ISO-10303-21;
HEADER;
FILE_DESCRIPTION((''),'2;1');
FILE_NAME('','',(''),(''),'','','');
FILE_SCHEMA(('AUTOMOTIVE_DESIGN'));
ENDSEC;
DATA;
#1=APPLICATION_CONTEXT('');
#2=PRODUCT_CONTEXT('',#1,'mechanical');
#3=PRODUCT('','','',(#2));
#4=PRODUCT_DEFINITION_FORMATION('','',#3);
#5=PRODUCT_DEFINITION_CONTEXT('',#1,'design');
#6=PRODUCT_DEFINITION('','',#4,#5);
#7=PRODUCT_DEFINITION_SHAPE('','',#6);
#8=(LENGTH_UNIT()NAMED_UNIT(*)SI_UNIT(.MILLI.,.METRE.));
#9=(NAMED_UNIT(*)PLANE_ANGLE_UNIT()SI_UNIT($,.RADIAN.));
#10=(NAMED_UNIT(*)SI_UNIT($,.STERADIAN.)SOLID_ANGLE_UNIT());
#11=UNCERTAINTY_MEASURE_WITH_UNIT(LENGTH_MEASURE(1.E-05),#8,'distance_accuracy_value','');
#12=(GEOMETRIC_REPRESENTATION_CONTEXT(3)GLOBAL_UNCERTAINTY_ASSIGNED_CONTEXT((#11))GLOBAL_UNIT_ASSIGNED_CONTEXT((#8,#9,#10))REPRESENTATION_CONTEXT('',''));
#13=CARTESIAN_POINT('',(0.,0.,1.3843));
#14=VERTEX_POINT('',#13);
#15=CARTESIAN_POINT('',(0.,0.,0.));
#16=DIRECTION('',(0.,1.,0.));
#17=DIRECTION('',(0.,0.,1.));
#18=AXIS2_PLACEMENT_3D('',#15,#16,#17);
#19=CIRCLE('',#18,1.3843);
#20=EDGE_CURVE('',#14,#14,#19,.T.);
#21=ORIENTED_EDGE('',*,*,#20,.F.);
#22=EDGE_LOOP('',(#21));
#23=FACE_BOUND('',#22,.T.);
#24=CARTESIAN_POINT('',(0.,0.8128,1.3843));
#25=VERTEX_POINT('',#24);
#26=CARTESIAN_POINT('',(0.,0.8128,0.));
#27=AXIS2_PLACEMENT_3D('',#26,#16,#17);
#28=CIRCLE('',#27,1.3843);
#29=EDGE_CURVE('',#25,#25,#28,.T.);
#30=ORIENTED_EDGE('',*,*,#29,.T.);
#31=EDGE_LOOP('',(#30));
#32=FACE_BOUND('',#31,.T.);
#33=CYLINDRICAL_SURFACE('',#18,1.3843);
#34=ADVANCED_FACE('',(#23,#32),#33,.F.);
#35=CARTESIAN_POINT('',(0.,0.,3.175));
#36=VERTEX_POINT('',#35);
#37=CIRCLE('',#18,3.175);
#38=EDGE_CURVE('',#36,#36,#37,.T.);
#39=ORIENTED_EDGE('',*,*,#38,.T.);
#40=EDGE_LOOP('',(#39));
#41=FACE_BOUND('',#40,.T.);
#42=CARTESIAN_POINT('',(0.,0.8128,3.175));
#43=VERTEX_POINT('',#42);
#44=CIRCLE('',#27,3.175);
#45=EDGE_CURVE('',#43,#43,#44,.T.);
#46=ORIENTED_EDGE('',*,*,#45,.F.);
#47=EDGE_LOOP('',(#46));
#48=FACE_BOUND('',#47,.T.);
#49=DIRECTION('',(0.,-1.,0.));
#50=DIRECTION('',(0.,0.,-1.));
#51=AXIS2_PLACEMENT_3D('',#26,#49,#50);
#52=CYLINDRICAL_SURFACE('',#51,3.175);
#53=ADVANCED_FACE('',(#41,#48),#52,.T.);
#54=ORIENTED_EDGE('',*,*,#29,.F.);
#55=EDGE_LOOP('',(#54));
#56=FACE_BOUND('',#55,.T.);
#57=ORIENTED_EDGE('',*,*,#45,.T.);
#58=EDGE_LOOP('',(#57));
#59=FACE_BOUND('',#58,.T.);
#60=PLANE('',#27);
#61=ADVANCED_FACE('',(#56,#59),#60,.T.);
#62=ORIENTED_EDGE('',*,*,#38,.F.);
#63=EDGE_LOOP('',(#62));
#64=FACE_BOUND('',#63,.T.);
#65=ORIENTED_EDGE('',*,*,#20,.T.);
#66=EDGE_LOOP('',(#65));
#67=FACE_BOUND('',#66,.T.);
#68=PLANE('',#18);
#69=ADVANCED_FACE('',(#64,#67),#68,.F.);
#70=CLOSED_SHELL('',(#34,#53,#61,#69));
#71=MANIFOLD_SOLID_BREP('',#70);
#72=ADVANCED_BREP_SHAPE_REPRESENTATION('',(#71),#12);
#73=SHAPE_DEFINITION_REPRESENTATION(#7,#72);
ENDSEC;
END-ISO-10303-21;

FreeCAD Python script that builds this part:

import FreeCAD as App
import Part
import Sketcher
from FreeCAD import Vector
Q = App.Units.Quantity

doc = App.newDocument("Part")
body = doc.addObject("PartDesign::Body", "Body")

# Sketch on XZ plane
sketch1 = body.newObject("Sketcher::SketchObject", "Sketch")
sketch1.AttachmentSupport = (doc.getObject("XZ_Plane"), [""])
sketch1.MapMode = "FlatFace"
sketch1.addGeometry(Part.Circle(Vector(0, 0, 0), Vector(0, 0, 1), 3.2), False)
sketch1.addConstraint(Sketcher.Constraint("Coincident", 0, 3, -1, 1))
sketch1.addConstraint(Sketcher.Constraint("Diameter", 0, Q("0.25 in")))
pad1 = body.newObject("PartDesign::Pad", "Pad")
pad1.Profile = sketch1
pad1.Length = Q("0.032 in")
pad1.Reversed = True

# Sketch on XZ plane
sketch2 = body.newObject("Sketcher::SketchObject", "Sketch001")
sketch2.AttachmentSupport = (doc.getObject("XZ_Plane"), [""])
sketch2.MapMode = "FlatFace"
sketch2.AttachmentOffset = App.Placement(Vector(0, 0, -0.032 * 25.4), App.Rotation())
sketch2.addGeometry(Part.Circle(Vector(0, 0, 0), Vector(0, 0, 1), 1.4), False)
sketch2.addConstraint(Sketcher.Constraint("Coincident", 0, 3, -1, 1))
sketch2.addConstraint(Sketcher.Constraint("Diameter", 0, Q("0.109 in")))
pocket1 = body.newObject("PartDesign::Pocket", "Pocket")
pocket1.Profile = sketch2
pocket1.Type = "ThroughAll"
pocket1.Reversed = True

doc.recompute()
